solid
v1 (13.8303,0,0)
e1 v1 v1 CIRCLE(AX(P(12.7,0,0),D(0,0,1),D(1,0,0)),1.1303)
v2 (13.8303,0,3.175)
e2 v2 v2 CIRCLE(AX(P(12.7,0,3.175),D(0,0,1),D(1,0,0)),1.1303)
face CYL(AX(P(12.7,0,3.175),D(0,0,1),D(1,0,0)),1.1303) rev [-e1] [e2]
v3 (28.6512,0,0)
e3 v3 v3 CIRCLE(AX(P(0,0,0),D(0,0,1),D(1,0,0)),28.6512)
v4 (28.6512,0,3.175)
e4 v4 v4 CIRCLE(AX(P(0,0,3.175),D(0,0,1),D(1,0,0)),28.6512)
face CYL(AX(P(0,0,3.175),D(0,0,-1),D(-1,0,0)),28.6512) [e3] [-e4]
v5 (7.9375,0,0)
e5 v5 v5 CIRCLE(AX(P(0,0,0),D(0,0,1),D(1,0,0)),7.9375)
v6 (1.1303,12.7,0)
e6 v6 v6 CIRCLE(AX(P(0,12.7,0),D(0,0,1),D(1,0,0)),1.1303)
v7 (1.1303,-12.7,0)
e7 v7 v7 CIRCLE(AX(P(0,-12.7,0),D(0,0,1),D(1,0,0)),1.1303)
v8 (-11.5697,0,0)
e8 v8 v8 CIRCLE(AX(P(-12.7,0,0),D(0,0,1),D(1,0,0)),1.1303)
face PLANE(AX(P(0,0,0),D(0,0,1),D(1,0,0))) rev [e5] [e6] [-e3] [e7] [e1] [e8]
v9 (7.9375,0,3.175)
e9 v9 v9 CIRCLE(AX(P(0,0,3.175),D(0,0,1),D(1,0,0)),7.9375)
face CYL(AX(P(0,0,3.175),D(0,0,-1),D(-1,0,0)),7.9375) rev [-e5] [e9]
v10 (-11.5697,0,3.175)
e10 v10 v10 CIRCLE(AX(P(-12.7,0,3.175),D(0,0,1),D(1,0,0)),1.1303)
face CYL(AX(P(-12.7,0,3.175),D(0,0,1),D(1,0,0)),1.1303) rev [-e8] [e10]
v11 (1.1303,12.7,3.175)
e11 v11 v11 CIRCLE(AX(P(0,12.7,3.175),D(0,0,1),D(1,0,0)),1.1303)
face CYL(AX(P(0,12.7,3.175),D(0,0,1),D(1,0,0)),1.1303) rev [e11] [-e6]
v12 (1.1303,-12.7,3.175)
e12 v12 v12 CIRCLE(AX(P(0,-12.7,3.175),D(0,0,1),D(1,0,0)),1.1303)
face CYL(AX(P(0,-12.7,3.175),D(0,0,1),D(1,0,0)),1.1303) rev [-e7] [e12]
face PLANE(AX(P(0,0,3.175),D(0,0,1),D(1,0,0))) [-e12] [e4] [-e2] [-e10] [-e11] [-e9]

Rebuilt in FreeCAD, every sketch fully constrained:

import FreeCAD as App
import Part
import Sketcher

V = App.Vector
Q = App.Units.Quantity

doc = App.newDocument("Part")
body = doc.addObject("PartDesign::Body", "Body")

sketch1 = body.newObject("Sketcher::SketchObject", "Sketch")
sketch1.AttachmentSupport = (doc.getObject("XY_Plane"), [""])
sketch1.MapMode = "FlatFace"
sketch1.addGeometry([
    Part.Circle(V(0, 0, 0), V(0, 0, 1), 29),
    Part.Circle(V(0, 0, 0), V(0, 0, 1), 8),
], False)
sketch1.addConstraint([
    Sketcher.Constraint("Coincident", 0, 3, -1, 1),
    Sketcher.Constraint("Coincident", 1, 3, -1, 1),
    Sketcher.Constraint("Diameter", 0, Q("2.256 in")),
    Sketcher.Constraint("Diameter", 1, Q("0.625 in")),
])
pad1 = body.newObject("PartDesign::Pad", "Pad")
pad1.Profile = sketch1
pad1.Length = Q("0.125 in")

sketch2 = body.newObject("Sketcher::SketchObject", "Sketch001")
sketch2.AttachmentSupport = (doc.getObject("XY_Plane"), [""])
sketch2.MapMode = "FlatFace"
sketch2.AttachmentOffset = App.Placement(V(0, 0, 0.125 * 25.4), App.Rotation())
sketch2.addGeometry([
    Part.Circle(V(0, 12.7, 0), V(0, 0, 1), 1.1),
    Part.Circle(V(0, -12.7, 0), V(0, 0, 1), 1.1),
    Part.Circle(V(12.7, 0, 0), V(0, 0, 1), 1.1),
    Part.Circle(V(-12.7, 0, 0), V(0, 0, 1), 1.1),
], False)
sketch2.addConstraint([
    Sketcher.Constraint("Equal", 0, 1),
    Sketcher.Constraint("Equal", 1, 2),
    Sketcher.Constraint("Equal", 2, 3),
    Sketcher.Constraint("Symmetric", 0, 3, 1, 3, -1, 1),
    Sketcher.Constraint("Symmetric", 2, 3, 3, 3, -1, 1),
    Sketcher.Constraint("PointOnObject", 0, 3, -2),
    Sketcher.Constraint("PointOnObject", 2, 3, -1),
    Sketcher.Constraint("Diameter", 0, Q("0.089 in")),
    Sketcher.Constraint("DistanceY", 1, 3, 0, 3, Q("1 in")),
    Sketcher.Constraint("DistanceX", 3, 3, 2, 3, Q("1 in")),
])
doc.recompute()
hole = body.newObject("PartDesign::Hole", "Hole")
hole.Profile = sketch2
hole.ThreadType = "None"
hole.Diameter = Q("0.089 in")
hole.DepthType = "Dimension"
hole.Depth = 4
hole.DrillPoint = "Angled"
hole.DrillPointAngle = 118

doc.recompute()
